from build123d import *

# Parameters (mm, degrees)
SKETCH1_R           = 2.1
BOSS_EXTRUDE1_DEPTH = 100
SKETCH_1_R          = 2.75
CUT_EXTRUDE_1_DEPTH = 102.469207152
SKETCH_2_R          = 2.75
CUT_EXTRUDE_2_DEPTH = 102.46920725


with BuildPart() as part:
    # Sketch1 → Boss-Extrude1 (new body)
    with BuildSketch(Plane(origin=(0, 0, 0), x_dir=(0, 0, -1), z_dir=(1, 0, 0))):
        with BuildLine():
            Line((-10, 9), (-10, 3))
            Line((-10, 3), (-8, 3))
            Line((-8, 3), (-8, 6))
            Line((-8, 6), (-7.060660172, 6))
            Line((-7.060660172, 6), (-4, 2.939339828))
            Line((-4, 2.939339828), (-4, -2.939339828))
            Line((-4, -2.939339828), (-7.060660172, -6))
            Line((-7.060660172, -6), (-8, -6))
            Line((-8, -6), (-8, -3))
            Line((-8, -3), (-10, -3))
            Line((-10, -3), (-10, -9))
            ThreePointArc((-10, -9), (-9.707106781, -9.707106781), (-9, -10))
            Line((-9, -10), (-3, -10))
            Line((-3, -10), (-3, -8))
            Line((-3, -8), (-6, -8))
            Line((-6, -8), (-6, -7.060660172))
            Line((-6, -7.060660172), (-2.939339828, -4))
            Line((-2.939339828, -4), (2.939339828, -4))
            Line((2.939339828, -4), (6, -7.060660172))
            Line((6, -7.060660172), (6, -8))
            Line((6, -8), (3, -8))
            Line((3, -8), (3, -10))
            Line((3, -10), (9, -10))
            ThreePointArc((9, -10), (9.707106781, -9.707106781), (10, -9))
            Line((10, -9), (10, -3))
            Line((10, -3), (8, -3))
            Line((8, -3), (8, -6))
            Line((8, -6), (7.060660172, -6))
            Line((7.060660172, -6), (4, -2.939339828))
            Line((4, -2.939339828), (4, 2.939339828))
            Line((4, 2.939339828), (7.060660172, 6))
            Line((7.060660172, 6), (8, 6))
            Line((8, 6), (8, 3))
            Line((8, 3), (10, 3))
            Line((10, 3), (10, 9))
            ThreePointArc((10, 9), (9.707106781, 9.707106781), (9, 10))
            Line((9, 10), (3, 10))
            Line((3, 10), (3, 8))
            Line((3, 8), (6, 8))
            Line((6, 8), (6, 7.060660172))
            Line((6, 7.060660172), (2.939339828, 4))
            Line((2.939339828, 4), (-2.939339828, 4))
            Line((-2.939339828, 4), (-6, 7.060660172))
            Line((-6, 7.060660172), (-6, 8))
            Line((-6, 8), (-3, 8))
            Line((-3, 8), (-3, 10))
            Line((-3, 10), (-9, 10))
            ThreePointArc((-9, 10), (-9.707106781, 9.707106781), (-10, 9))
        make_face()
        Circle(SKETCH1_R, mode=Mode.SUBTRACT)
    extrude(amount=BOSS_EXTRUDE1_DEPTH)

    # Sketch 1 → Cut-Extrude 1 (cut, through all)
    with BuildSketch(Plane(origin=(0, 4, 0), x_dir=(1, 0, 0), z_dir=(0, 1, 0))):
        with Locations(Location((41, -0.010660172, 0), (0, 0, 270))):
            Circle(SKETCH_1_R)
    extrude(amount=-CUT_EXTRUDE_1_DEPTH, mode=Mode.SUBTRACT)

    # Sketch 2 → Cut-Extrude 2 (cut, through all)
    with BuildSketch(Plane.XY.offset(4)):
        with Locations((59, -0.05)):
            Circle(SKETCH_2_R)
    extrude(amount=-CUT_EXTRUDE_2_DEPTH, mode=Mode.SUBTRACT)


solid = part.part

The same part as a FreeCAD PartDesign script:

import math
import FreeCAD as App
import Part
import Sketcher
from FreeCAD import Vector
Q = App.Units.Quantity

doc = App.newDocument("Part")
body = doc.addObject("PartDesign::Body", "Body")

sketch1 = doc.addObject("Sketcher::SketchObject", "Sketch")
body.addObject(sketch1)
sketch1.AttachmentSupport = (doc.YZ_Plane, [""])
sketch1.MapMode = "FlatFace"
sketch1.addGeometry(Part.LineSegment(Vector(9, 10, 0), Vector(3, 10, 0)), False)
sketch1.addGeometry(Part.LineSegment(Vector(3, 10, 0), Vector(3, 8, 0)), False)
sketch1.addGeometry(Part.LineSegment(Vector(3, 8, 0), Vector(6, 8, 0)), False)
sketch1.addGeometry(Part.LineSegment(Vector(6, 8, 0), Vector(6, 7.1, 0)), False)
sketch1.addGeometry(Part.LineSegment(Vector(6, 7.1, 0), Vector(2.9, 4, 0)), False)
sketch1.addGeometry(Part.LineSegment(Vector(2.9, 4, 0), Vector(-2.9, 4, 0)), False)
sketch1.addGeometry(Part.LineSegment(Vector(-2.9, 4, 0), Vector(-6, 7.1, 0)), False)
sketch1.addGeometry(Part.LineSegment(Vector(-6, 7.1, 0), Vector(-6, 8, 0)), False)
sketch1.addGeometry(Part.LineSegment(Vector(-6, 8, 0), Vector(-3, 8, 0)), False)
sketch1.addGeometry(Part.LineSegment(Vector(-3, 8, 0), Vector(-3, 10, 0)), False)
sketch1.addGeometry(Part.LineSegment(Vector(-3, 10, 0), Vector(-9, 10, 0)), False)
sketch1.addGeometry(Part.ArcOfCircle(Part.Circle(Vector(-9, 9, 0), Vector(0, 0, 1), 1), math.radians(90), math.radians(180)), False)
sketch1.addGeometry(Part.LineSegment(Vector(-10, 9, 0), Vector(-10, 3, 0)), False)
sketch1.addGeometry(Part.LineSegment(Vector(-10, 3, 0), Vector(-8, 3, 0)), False)
sketch1.addGeometry(Part.LineSegment(Vector(-8, 3, 0), Vector(-8, 6, 0)), False)
sketch1.addGeometry(Part.LineSegment(Vector(-8, 6, 0), Vector(-7.1, 6, 0)), False)
sketch1.addGeometry(Part.LineSegment(Vector(-7.1, 6, 0), Vector(-4, 2.9, 0)), False)
sketch1.addGeometry(Part.LineSegment(Vector(-4, 2.9, 0), Vector(-4, -2.9, 0)), False)
sketch1.addGeometry(Part.LineSegment(Vector(-4, -2.9, 0), Vector(-7.1, -6, 0)), False)
sketch1.addGeometry(Part.LineSegment(Vector(-7.1, -6, 0), Vector(-8, -6, 0)), False)
sketch1.addGeometry(Part.LineSegment(Vector(-8, -6, 0), Vector(-8, -3, 0)), False)
sketch1.addGeometry(Part.LineSegment(Vector(-8, -3, 0), Vector(-10, -3, 0)), False)
sketch1.addGeometry(Part.LineSegment(Vector(-10, -3, 0), Vector(-10, -9, 0)), False)
sketch1.addGeometry(Part.ArcOfCircle(Part.Circle(Vector(-9, -9, 0), Vector(0, 0, 1), 1), math.radians(-180), math.radians(-90)), False)
sketch1.addGeometry(Part.LineSegment(Vector(-9, -10, 0), Vector(-3, -10, 0)), False)
sketch1.addGeometry(Part.LineSegment(Vector(-3, -10, 0), Vector(-3, -8, 0)), False)
sketch1.addGeometry(Part.LineSegment(Vector(-3, -8, 0), Vector(-6, -8, 0)), False)
sketch1.addGeometry(Part.LineSegment(Vector(-6, -8, 0), Vector(-6, -7.1, 0)), False)
sketch1.addGeometry(Part.LineSegment(Vector(-6, -7.1, 0), Vector(-2.9, -4, 0)), False)
sketch1.addGeometry(Part.LineSegment(Vector(-2.9, -4, 0), Vector(2.9, -4, 0)), False)
sketch1.addGeometry(Part.LineSegment(Vector(2.9, -4, 0), Vector(6, -7.1, 0)), False)
sketch1.addGeometry(Part.LineSegment(Vector(6, -7.1, 0), Vector(6, -8, 0)), False)
sketch1.addGeometry(Part.LineSegment(Vector(6, -8, 0), Vector(3, -8, 0)), False)
sketch1.addGeometry(Part.LineSegment(Vector(3, -8, 0), Vector(3, -10, 0)), False)
sketch1.addGeometry(Part.LineSegment(Vector(3, -10, 0), Vector(9, -10, 0)), False)
sketch1.addGeometry(Part.ArcOfCircle(Part.Circle(Vector(9, -9, 0), Vector(0, 0, 1), 1), math.radians(-90), math.radians(0)), False)
sketch1.addGeometry(Part.LineSegment(Vector(10, -9, 0), Vector(10, -3, 0)), False)
sketch1.addGeometry(Part.LineSegment(Vector(10, -3, 0), Vector(8, -3, 0)), False)
sketch1.addGeometry(Part.LineSegment(Vector(8, -3, 0), Vector(8, -6, 0)), False)
sketch1.addGeometry(Part.LineSegment(Vector(8, -6, 0), Vector(7.1, -6, 0)), False)
sketch1.addGeometry(Part.LineSegment(Vector(7.1, -6, 0), Vector(4, -2.9, 0)), False)
sketch1.addGeometry(Part.LineSegment(Vector(4, -2.9, 0), Vector(4, 2.9, 0)), False)
sketch1.addGeometry(Part.LineSegment(Vector(4, 2.9, 0), Vector(7.1, 6, 0)), False)
sketch1.addGeometry(Part.LineSegment(Vector(7.1, 6, 0), Vector(8, 6, 0)), False)
sketch1.addGeometry(Part.LineSegment(Vector(8, 6, 0), Vector(8, 3, 0)), False)
sketch1.addGeometry(Part.LineSegment(Vector(8, 3, 0), Vector(10, 3, 0)), False)
sketch1.addGeometry(Part.LineSegment(Vector(10, 3, 0), Vector(10, 9, 0)), False)
sketch1.addGeometry(Part.ArcOfCircle(Part.Circle(Vector(9, 9, 0), Vector(0, 0, 1), 1), math.radians(0), math.radians(90)), False)
sketch1.addGeometry(Part.Circle(Vector(0, 0, 0), Vector(0, 0, 1), 2.1), False)
sketch1.addConstraint(Sketcher.Constraint("Coincident", 0, 2, 1, 1))
sketch1.addConstraint(Sketcher.Constraint("Coincident", 1, 2, 2, 1))
sketch1.addConstraint(Sketcher.Constraint("Coincident", 2, 2, 3, 1))
sketch1.addConstraint(Sketcher.Constraint("Coincident", 3, 2, 4, 1))
sketch1.addConstraint(Sketcher.Constraint("Coincident", 4, 2, 5, 1))
sketch1.addConstraint(Sketcher.Constraint("Coincident", 5, 2, 6, 1))
sketch1.addConstraint(Sketcher.Constraint("Coincident", 6, 2, 7, 1))
sketch1.addConstraint(Sketcher.Constraint("Coincident", 7, 2, 8, 1))
sketch1.addConstraint(Sketcher.Constraint("Coincident", 8, 2, 9, 1))
sketch1.addConstraint(Sketcher.Constraint("Coincident", 9, 2, 10, 1))
sketch1.addConstraint(Sketcher.Constraint("Tangent", 10, 2, 11, 1))
sketch1.addConstraint(Sketcher.Constraint("Tangent", 11, 2, 12, 1))
sketch1.addConstraint(Sketcher.Constraint("Coincident", 12, 2, 13, 1))
sketch1.addConstraint(Sketcher.Constraint("Coincident", 13, 2, 14, 1))
sketch1.addConstraint(Sketcher.Constraint("Coincident", 14, 2, 15, 1))
sketch1.addConstraint(Sketcher.Constraint("Coincident", 15, 2, 16, 1))
sketch1.addConstraint(Sketcher.Constraint("Coincident", 16, 2, 17, 1))
sketch1.addConstraint(Sketcher.Constraint("Coincident", 17, 2, 18, 1))
sketch1.addConstraint(Sketcher.Constraint("Coincident", 18, 2, 19, 1))
sketch1.addConstraint(Sketcher.Constraint("Coincident", 19, 2, 20, 1))
sketch1.addConstraint(Sketcher.Constraint("Coincident", 20, 2, 21, 1))
sketch1.addConstraint(Sketcher.Constraint("Coincident", 21, 2, 22, 1))
sketch1.addConstraint(Sketcher.Constraint("Tangent", 22, 2, 23, 1))
sketch1.addConstraint(Sketcher.Constraint("Tangent", 23, 2, 24, 1))
sketch1.addConstraint(Sketcher.Constraint("Coincident", 24, 2, 25, 1))
sketch1.addConstraint(Sketcher.Constraint("Coincident", 25, 2, 26, 1))
sketch1.addConstraint(Sketcher.Constraint("Coincident", 26, 2, 27, 1))
sketch1.addConstraint(Sketcher.Constraint("Coincident", 27, 2, 28, 1))
sketch1.addConstraint(Sketcher.Constraint("Coincident", 28, 2, 29, 1))
sketch1.addConstraint(Sketcher.Constraint("Coincident", 29, 2, 30, 1))
sketch1.addConstraint(Sketcher.Constraint("Coincident", 30, 2, 31, 1))
sketch1.addConstraint(Sketcher.Constraint("Coincident", 31, 2, 32, 1))
sketch1.addConstraint(Sketcher.Constraint("Coincident", 32, 2, 33, 1))
sketch1.addConstraint(Sketcher.Constraint("Coincident", 33, 2, 34, 1))
sketch1.addConstraint(Sketcher.Constraint("Tangent", 34, 2, 35, 1))
sketch1.addConstraint(Sketcher.Constraint("Tangent", 35, 2, 36, 1))
sketch1.addConstraint(Sketcher.Constraint("Coincident", 36, 2, 37, 1))
sketch1.addConstraint(Sketcher.Constraint("Coincident", 37, 2, 38, 1))
sketch1.addConstraint(Sketcher.Constraint("Coincident", 38, 2, 39, 1))
sketch1.addConstraint(Sketcher.Constraint("Coincident", 39, 2, 40, 1))
sketch1.addConstraint(Sketcher.Constraint("Coincident", 40, 2, 41, 1))
sketch1.addConstraint(Sketcher.Constraint("Coincident", 41, 2, 42, 1))
sketch1.addConstraint(Sketcher.Constraint("Coincident", 42, 2, 43, 1))
sketch1.addConstraint(Sketcher.Constraint("Coincident", 43, 2, 44, 1))
sketch1.addConstraint(Sketcher.Constraint("Coincident", 44, 2, 45, 1))
sketch1.addConstraint(Sketcher.Constraint("Coincident", 45, 2, 46, 1))
sketch1.addConstraint(Sketcher.Constraint("Tangent", 46, 2, 47, 1))
sketch1.addConstraint(Sketcher.Constraint("Tangent", 47, 2, 0, 1))
sketch1.addConstraint(Sketcher.Constraint("Horizontal", 0))
sketch1.addConstraint(Sketcher.Constraint("Vertical", 1))
sketch1.addConstraint(Sketcher.Constraint("Horizontal", 2))
sketch1.addConstraint(Sketcher.Constraint("Vertical", 3))
sketch1.addConstraint(Sketcher.Constraint("Horizontal", 5))
sketch1.addConstraint(Sketcher.Constraint("Vertical", 7))
sketch1.addConstraint(Sketcher.Constraint("Horizontal", 8))
sketch1.addConstraint(Sketcher.Constraint("Vertical", 9))
sketch1.addConstraint(Sketcher.Constraint("Horizontal", 10))
sketch1.addConstraint(Sketcher.Constraint("Vertical", 12))
sketch1.addConstraint(Sketcher.Constraint("Horizontal", 13))
sketch1.addConstraint(Sketcher.Constraint("Vertical", 14))
sketch1.addConstraint(Sketcher.Constraint("Horizontal", 15))
sketch1.addConstraint(Sketcher.Constraint("Vertical", 17))
sketch1.addConstraint(Sketcher.Constraint("Horizontal", 19))
sketch1.addConstraint(Sketcher.Constraint("Vertical", 20))
sketch1.addConstraint(Sketcher.Constraint("Horizontal", 21))
sketch1.addConstraint(Sketcher.Constraint("Vertical", 22))
sketch1.addConstraint(Sketcher.Constraint("Horizontal", 24))
sketch1.addConstraint(Sketcher.Constraint("Vertical", 25))
sketch1.addConstraint(Sketcher.Constraint("Horizontal", 26))
sketch1.addConstraint(Sketcher.Constraint("Vertical", 27))
sketch1.addConstraint(Sketcher.Constraint("Horizontal", 29))
sketch1.addConstraint(Sketcher.Constraint("Vertical", 31))
sketch1.addConstraint(Sketcher.Constraint("Horizontal", 32))
sketch1.addConstraint(Sketcher.Constraint("Vertical", 33))
sketch1.addConstraint(Sketcher.Constraint("Horizontal", 34))
sketch1.addConstraint(Sketcher.Constraint("Vertical", 36))
sketch1.addConstraint(Sketcher.Constraint("Horizontal", 37))
sketch1.addConstraint(Sketcher.Constraint("Vertical", 38))
sketch1.addConstraint(Sketcher.Constraint("Horizontal", 39))
sketch1.addConstraint(Sketcher.Constraint("Vertical", 41))
sketch1.addConstraint(Sketcher.Constraint("Horizontal", 43))
sketch1.addConstraint(Sketcher.Constraint("Vertical", 44))
sketch1.addConstraint(Sketcher.Constraint("Horizontal", 45))
sketch1.addConstraint(Sketcher.Constraint("Vertical", 46))
sketch1.addConstraint(Sketcher.Constraint("Coincident", 48, 3, -1, 1))
sketch1.addConstraint(Sketcher.Constraint("Equal", 11, 23))
sketch1.addConstraint(Sketcher.Constraint("Equal", 23, 35))
sketch1.addConstraint(Sketcher.Constraint("Equal", 35, 47))
sketch1.addConstraint(Sketcher.Constraint("Symmetric", 11, 3, 35, 3, -1, 1))
sketch1.addConstraint(Sketcher.Constraint("Symmetric", 23, 3, 47, 3, -1, 1))
sketch1.addConstraint(Sketcher.Constraint("Symmetric", 1, 2, 25, 2, -1, 1))
sketch1.addConstraint(Sketcher.Constraint("Symmetric", 3, 2, 27, 2, -1, 1))
sketch1.addConstraint(Sketcher.Constraint("Symmetric", 4, 2, 28, 2, -1, 1))
sketch1.addConstraint(Sketcher.Constraint("Symmetric", 6, 2, 30, 2, -1, 1))
sketch1.addConstraint(Sketcher.Constraint("Symmetric", 8, 2, 32, 2, -1, 1))
sketch1.addConstraint(Sketcher.Constraint("Symmetric", 13, 2, 37, 2, -1, 1))
sketch1.addConstraint(Sketcher.Constraint("Symmetric", 15, 2, 39, 2, -1, 1))
sketch1.addConstraint(Sketcher.Constraint("Symmetric", 16, 2, 40, 2, -1, 1))
sketch1.addConstraint(Sketcher.Constraint("Symmetric", 18, 2, 42, 2, -1, 1))
sketch1.addConstraint(Sketcher.Constraint("Symmetric", 20, 2, 44, 2, -1, 1))
sketch1.addConstraint(Sketcher.Constraint("Symmetric", 23, 3, 35, 3, -2))
sketch1.addConstraint(Sketcher.Constraint("Symmetric", 3, 2, 6, 2, -2))
sketch1.addConstraint(Sketcher.Constraint("Symmetric", 1, 2, 8, 2, -2))
sketch1.addConstraint(Sketcher.Constraint("Symmetric", 20, 2, 37, 2, -2))
sketch1.addConstraint(Sketcher.Constraint("Symmetric", 18, 2, 39, 2, -2))
sketch1.addConstraint(Sketcher.Constraint("Perpendicular", 4, 6))
sketch1.addConstraint(Sketcher.Constraint("Parallel", 6, 16))
sketch1.addConstraint(Sketcher.Constraint("Perpendicular", 16, 18))
sketch1.addConstraint(Sketcher.Constraint("Perpendicular", 28, 30))
sketch1.addConstraint(Sketcher.Constraint("Perpendicular", 40, 42))
sketch1.addConstraint(Sketcher.Constraint("Horizontal", 17, 2, 40, 2))
sketch1.addConstraint(Sketcher.Constraint("Equal", 45, 1))
sketch1.addConstraint(Sketcher.Constraint("Equal", 43, 3))
sketch1.addConstraint(Sketcher.Constraint("Equal", 34, 12))
sketch1.addConstraint(Sketcher.Constraint("Equal", 32, 14))
sketch1.addConstraint(Sketcher.Constraint("Equal", 29, 17))
sketch1.addConstraint(Sketcher.Constraint("Equal", 6, 16))
sketch1.addConstraint(Sketcher.Constraint("Radius", 11, Q("1 mm")))
sketch1.addConstraint(Sketcher.Constraint("Diameter", 48, Q("4.2 mm")))
sketch1.addConstraint(Sketcher.Constraint("DistanceX", 0, 2, 0, 1, Q("6 mm")))
sketch1.addConstraint(Sketcher.Constraint("DistanceX", 2, 1, 2, 2, Q("3 mm")))
sketch1.addConstraint(Sketcher.Constraint("DistanceX", 13, 1, 13, 2, Q("2 mm")))
sketch1.addConstraint(Sketcher.Constraint("DistanceX", 11, 3, -1, 1, Q("9 mm")))
sketch1.addConstraint(Sketcher.Constraint("DistanceY", -1, 1, 4, 2, Q("4 mm")))
sketch1.addConstraint(Sketcher.Constraint("DistanceX", 5, 2, 5, 1, Q("5.87868 mm")))
pad1 = doc.addObject("PartDesign::Pad", "Pad")
body.addObject(pad1)
pad1.Profile = sketch1
pad1.Length = 100

sketch2 = doc.addObject("Sketcher::SketchObject", "Sketch001")
body.addObject(sketch2)
sketch2.AttachmentSupport = (doc.XZ_Plane, [""])
sketch2.MapMode = "FlatFace"
sketch2.AttachmentOffset = App.Placement(Vector(0, 0, -4), App.Rotation())
sketch2.addGeometry(Part.Circle(Vector(41, 0, 0), Vector(0, 0, 1), 2.8), False)
sketch2.addConstraint(Sketcher.Constraint("Diameter", 0, Q("5.5 mm")))
sketch2.addConstraint(Sketcher.Constraint("DistanceX", -1, 1, 0, 3, Q("41 mm")))
sketch2.addConstraint(Sketcher.Constraint("DistanceY", -1, 1, 0, 3, Q("0.01066 mm")))
pocket1 = doc.addObject("PartDesign::Pocket", "Pocket")
body.addObject(pocket1)
pocket1.Profile = sketch2
pocket1.Type = "ThroughAll"
pocket1.Reversed = True

sketch3 = doc.addObject("Sketcher::SketchObject", "Sketch002")
body.addObject(sketch3)
sketch3.AttachmentSupport = (doc.XY_Plane, [""])
sketch3.MapMode = "FlatFace"
sketch3.AttachmentOffset = App.Placement(Vector(0, 0, 4), App.Rotation())
sketch3.addGeometry(Part.Circle(Vector(59, -0.1, 0), Vector(0, 0, 1), 2.8), False)
sketch3.addConstraint(Sketcher.Constraint("Diameter", 0, Q("5.5 mm")))
sketch3.addConstraint(Sketcher.Constraint("DistanceX", -1, 1, 0, 3, Q("59 mm")))
sketch3.addConstraint(Sketcher.Constraint("DistanceY", 0, 3, -1, 1, Q("0.05 mm")))
pocket2 = doc.addObject("PartDesign::Pocket", "Pocket001")
body.addObject(pocket2)
pocket2.Profile = sketch3
pocket2.Type = "ThroughAll"

doc.recompute()
